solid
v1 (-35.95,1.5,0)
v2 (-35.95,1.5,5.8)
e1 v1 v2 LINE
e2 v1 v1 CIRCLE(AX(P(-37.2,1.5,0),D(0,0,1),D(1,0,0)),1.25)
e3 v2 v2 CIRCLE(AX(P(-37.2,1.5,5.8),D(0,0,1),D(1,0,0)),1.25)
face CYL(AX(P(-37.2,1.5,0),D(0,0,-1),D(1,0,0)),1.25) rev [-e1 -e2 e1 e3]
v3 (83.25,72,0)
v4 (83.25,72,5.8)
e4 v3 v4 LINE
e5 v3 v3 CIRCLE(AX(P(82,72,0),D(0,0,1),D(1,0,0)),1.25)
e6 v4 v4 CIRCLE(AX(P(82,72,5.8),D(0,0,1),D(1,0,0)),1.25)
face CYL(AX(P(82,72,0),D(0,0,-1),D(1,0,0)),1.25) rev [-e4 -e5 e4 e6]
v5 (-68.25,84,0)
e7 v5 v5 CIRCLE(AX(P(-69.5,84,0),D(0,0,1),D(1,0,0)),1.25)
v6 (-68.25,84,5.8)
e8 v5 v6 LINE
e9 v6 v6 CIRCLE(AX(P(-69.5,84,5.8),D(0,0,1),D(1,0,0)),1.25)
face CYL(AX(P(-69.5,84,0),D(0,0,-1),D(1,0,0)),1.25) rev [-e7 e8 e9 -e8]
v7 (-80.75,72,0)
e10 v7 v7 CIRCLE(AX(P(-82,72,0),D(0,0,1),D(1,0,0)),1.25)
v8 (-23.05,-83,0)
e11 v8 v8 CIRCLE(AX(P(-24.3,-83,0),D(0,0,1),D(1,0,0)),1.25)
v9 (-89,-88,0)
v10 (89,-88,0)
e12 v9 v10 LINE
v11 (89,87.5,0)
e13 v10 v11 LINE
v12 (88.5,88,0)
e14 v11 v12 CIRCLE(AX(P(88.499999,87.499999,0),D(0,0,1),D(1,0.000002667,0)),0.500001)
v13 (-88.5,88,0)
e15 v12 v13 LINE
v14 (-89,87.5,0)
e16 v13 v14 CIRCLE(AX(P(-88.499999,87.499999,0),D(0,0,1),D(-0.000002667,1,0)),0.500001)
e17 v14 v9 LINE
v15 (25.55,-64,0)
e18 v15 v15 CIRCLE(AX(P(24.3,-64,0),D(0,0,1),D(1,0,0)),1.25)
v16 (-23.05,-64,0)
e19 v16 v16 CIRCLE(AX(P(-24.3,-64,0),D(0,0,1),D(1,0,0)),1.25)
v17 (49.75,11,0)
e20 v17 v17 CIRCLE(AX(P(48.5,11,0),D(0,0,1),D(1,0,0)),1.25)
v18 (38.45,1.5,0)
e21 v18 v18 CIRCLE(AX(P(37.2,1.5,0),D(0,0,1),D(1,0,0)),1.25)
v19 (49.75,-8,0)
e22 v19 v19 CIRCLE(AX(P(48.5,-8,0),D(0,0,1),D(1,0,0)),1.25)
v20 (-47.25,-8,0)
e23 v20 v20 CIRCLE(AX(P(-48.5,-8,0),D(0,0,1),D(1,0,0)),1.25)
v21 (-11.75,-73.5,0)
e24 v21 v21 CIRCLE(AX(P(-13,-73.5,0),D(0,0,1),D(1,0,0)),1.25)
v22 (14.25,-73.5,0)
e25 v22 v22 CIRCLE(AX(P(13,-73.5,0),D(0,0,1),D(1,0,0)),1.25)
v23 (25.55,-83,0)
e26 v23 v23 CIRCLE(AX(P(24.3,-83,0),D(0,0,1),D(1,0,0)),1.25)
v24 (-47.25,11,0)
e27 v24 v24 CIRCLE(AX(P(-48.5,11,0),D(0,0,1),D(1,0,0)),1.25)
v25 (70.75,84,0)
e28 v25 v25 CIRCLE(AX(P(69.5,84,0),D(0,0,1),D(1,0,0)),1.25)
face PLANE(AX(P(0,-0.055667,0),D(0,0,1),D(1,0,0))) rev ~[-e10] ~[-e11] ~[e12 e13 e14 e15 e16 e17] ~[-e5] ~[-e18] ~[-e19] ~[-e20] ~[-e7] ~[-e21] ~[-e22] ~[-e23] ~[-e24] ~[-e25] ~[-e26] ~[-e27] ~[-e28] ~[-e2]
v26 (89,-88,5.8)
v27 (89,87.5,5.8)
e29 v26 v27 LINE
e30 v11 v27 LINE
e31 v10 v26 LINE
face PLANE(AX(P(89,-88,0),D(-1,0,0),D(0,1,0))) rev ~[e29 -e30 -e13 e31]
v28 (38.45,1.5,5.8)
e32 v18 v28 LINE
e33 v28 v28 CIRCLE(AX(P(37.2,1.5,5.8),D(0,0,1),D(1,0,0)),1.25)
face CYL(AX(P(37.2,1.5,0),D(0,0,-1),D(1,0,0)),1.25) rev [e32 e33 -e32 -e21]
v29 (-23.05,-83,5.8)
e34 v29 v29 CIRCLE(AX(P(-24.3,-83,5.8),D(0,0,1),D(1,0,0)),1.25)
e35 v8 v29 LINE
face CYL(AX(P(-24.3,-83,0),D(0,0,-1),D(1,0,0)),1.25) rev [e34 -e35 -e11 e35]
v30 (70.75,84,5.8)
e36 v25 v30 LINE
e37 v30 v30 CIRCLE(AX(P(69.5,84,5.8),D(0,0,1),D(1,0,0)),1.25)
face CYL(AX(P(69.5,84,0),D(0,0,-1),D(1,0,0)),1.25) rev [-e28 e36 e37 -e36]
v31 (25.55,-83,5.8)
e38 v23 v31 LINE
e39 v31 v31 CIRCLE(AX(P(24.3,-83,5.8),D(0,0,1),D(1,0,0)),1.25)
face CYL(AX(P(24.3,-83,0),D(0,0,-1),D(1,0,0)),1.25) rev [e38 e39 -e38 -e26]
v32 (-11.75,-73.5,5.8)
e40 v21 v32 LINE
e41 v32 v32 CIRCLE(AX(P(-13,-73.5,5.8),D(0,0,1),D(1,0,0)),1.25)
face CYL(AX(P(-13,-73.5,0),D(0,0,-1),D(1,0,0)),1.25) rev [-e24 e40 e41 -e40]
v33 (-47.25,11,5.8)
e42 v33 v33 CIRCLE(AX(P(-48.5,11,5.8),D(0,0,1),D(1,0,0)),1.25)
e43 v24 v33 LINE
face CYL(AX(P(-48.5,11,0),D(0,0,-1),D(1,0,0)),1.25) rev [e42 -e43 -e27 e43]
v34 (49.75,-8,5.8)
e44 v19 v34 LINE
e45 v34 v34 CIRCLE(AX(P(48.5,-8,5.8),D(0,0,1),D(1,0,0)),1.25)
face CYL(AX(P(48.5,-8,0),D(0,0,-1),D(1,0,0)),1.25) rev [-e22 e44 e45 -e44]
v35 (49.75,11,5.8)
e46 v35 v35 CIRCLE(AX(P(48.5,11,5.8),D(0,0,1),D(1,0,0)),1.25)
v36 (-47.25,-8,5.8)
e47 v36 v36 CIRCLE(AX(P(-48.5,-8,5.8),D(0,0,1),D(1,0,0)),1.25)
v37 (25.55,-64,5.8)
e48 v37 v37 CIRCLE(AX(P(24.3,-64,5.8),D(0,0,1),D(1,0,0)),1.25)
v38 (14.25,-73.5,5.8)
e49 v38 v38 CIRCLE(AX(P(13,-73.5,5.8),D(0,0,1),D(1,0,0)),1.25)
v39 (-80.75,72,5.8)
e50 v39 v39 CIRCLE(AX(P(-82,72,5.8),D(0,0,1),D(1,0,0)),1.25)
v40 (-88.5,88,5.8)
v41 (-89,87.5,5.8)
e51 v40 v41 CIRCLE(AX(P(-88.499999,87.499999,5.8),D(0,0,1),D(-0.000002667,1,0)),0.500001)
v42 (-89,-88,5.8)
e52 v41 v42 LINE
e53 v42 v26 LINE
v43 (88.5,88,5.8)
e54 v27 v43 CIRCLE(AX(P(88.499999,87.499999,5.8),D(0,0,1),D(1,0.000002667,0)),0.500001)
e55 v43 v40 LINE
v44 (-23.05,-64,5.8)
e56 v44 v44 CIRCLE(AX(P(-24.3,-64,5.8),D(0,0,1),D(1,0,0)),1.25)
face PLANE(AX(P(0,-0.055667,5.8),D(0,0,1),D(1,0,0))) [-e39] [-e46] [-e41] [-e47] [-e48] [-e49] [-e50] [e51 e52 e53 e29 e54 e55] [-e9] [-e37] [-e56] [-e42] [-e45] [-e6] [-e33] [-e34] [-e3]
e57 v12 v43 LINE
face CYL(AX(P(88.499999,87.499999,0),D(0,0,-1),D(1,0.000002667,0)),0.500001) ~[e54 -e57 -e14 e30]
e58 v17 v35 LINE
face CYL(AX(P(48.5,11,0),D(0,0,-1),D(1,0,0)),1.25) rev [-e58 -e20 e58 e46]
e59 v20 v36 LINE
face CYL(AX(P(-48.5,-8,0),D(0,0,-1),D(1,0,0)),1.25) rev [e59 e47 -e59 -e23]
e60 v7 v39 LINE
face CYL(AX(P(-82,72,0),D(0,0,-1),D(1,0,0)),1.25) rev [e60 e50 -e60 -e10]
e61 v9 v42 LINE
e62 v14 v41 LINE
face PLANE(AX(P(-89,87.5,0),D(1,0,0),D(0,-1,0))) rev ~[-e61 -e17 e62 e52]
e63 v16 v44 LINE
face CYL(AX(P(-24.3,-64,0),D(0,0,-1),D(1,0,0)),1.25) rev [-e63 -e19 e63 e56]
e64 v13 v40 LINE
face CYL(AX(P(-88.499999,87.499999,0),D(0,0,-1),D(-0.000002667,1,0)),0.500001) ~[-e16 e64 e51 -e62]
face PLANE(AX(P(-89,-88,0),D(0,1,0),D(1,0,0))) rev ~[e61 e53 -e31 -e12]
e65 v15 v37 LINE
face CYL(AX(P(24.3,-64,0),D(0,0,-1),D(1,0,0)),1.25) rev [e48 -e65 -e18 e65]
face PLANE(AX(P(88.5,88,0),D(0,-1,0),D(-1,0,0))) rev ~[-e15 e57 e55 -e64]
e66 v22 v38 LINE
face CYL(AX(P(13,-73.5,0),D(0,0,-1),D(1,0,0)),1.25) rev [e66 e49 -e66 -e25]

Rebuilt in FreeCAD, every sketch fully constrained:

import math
import FreeCAD as App
import Part
import Sketcher

V = App.Vector
Q = App.Units.Quantity

doc = App.newDocument("Part")
body = doc.addObject("PartDesign::Body", "Body")

sketch1 = body.newObject("Sketcher::SketchObject", "Sketch")
sketch1.AttachmentSupport = (doc.getObject("XY_Plane"), [""])
sketch1.MapMode = "FlatFace"
sketch1.addGeometry([
    Part.ArcOfCircle(Part.Circle(V(88.5, 87.5, 0), V(0, 0, 1), 0.5), math.radians(0), math.radians(90)),
    Part.LineSegment(V(88.5, 88, 0), V(-88.5, 88, 0)),
    Part.ArcOfCircle(Part.Circle(V(-88.5, 87.5, 0), V(0, 0, 1), 0.5), math.radians(90), math.radians(180)),
    Part.LineSegment(V(-89, 87.5, 0), V(-89, -88, 0)),
    Part.LineSegment(V(-89, -88, 0), V(89, -88, 0)),
    Part.LineSegment(V(89, -88, 0), V(89, 87.5, 0)),
    Part.Circle(V(-24.3, -83, 0), V(0, 0, 1), 1.2),
    Part.Circle(V(-24.3, -64, 0), V(0, 0, 1), 1.2),
    Part.Circle(V(-13, -73.5, 0), V(0, 0, 1), 1.2),
    Part.Circle(V(-48.5, -8, 0), V(0, 0, 1), 1.2),
    Part.Circle(V(13, -73.5, 0), V(0, 0, 1), 1.2),
    Part.Circle(V(24.3, -83, 0), V(0, 0, 1), 1.2),
    Part.Circle(V(24.3, -64, 0), V(0, 0, 1), 1.2),
    Part.Circle(V(48.5, -8, 0), V(0, 0, 1), 1.2),
    Part.Circle(V(-48.5, 11, 0), V(0, 0, 1), 1.2),
    Part.Circle(V(-37.2, 1.5, 0), V(0, 0, 1), 1.2),
    Part.Circle(V(-82, 72, 0), V(0, 0, 1), 1.2),
    Part.Circle(V(-69.5, 84, 0), V(0, 0, 1), 1.2),
    Part.Circle(V(37.2, 1.5, 0), V(0, 0, 1), 1.2),
    Part.Circle(V(48.5, 11, 0), V(0, 0, 1), 1.2),
    Part.Circle(V(82, 72, 0), V(0, 0, 1), 1.2),
    Part.Circle(V(69.5, 84, 0), V(0, 0, 1), 1.2),
], False)
sketch1.addConstraint([
    Sketcher.Constraint("Coincident", 0, 2, 1, 1),
    Sketcher.Constraint("Coincident", 1, 2, 2, 1),
    Sketcher.Constraint("Coincident", 2, 2, 3, 1),
    Sketcher.Constraint("Coincident", 3, 2, 4, 1),
    Sketcher.Constraint("Coincident", 4, 2, 5, 1),
    Sketcher.Constraint("Coincident", 5, 2, 0, 1),
    Sketcher.Constraint("Horizontal", 1),
    Sketcher.Constraint("Vertical", 3),
    Sketcher.Constraint("Horizontal", 4),
    Sketcher.Constraint("Vertical", 5),
    Sketcher.Constraint("Equal", 0, 2),
    Sketcher.Constraint("Equal", 6, 7),
    Sketcher.Constraint("Equal", 7, 8),
    Sketcher.Constraint("Equal", 8, 9),
    Sketcher.Constraint("Equal", 9, 10),
    Sketcher.Constraint("Equal", 10, 11),
    Sketcher.Constraint("Equal", 11, 12),
    Sketcher.Constraint("Equal", 12, 13),
    Sketcher.Constraint("Equal", 13, 14),
    Sketcher.Constraint("Equal", 14, 15),
    Sketcher.Constraint("Equal", 15, 16),
    Sketcher.Constraint("Equal", 16, 17),
    Sketcher.Constraint("Equal", 17, 18),
    Sketcher.Constraint("Equal", 18, 19),
    Sketcher.Constraint("Equal", 19, 20),
    Sketcher.Constraint("Equal", 20, 21),
    Sketcher.Constraint("Symmetric", 8, 3, 10, 3, -2),
    Sketcher.Constraint("Symmetric", 6, 3, 11, 3, -2),
    Sketcher.Constraint("Symmetric", 7, 3, 12, 3, -2),
    Sketcher.Constraint("Symmetric", 9, 3, 13, 3, -2),
    Sketcher.Constraint("Symmetric", 15, 3, 18, 3, -2),
    Sketcher.Constraint("Symmetric", 14, 3, 19, 3, -2),
    Sketcher.Constraint("Symmetric", 16, 3, 20, 3, -2),
    Sketcher.Constraint("Symmetric", 17, 3, 21, 3, -2),
    Sketcher.Constraint("Symmetric", 2, 2, 5, 2, -2),
    Sketcher.Constraint("Horizontal", 0, 3, 2, 2),
    Sketcher.Constraint("Vertical", 6, 3, 7, 3),
    Sketcher.Constraint("Vertical", 9, 3, 14, 3),
    Sketcher.Constraint("Vertical", 2, 3, 1, 2),
    Sketcher.Constraint("Diameter", 6, Q("2.5 mm")),
    Sketcher.Constraint("Radius", 0, Q("0.500001 mm")),
    Sketcher.Constraint("DistanceX", 1, 2, 1, 1, Q("177 mm")),
    Sketcher.Constraint("DistanceX", 4, 1, 4, 2, Q("178 mm")),
    Sketcher.Constraint("DistanceY", 3, 2, 3, 1, Q("175.5 mm")),
    Sketcher.Constraint("DistanceY", 6, 3, -1, 1, Q("83 mm")),
    Sketcher.Constraint("DistanceY", 7, 3, -1, 1, Q("64 mm")),
    Sketcher.Constraint("DistanceX", 8, 3, -1, 1, Q("13 mm")),
    Sketcher.Constraint("DistanceY", 9, 3, -1, 1, Q("8 mm")),
    Sketcher.Constraint("DistanceY", -1, 1, 14, 3, Q("11 mm")),
    Sketcher.Constraint("DistanceX", 16, 3, -1, 1, Q("82 mm")),
    Sketcher.Constraint("DistanceY", -1, 1, 16, 3, Q("72 mm")),
    Sketcher.Constraint("DistanceY", -1, 1, 17, 3, Q("84 mm")),
    Sketcher.Constraint("DistanceY", -1, 1, 0, 2, Q("88 mm")),
    Sketcher.Constraint("DistanceY", 8, 3, 2, 3, Q("160.999999 mm")),
    Sketcher.Constraint("DistanceX", 2, 3, 9, 3, Q("39.999999 mm")),
    Sketcher.Constraint("DistanceY", 8, 3, 15, 3, Q("75 mm")),
    Sketcher.Constraint("DistanceX", 2, 3, 17, 3, Q("18.999999 mm")),
    Sketcher.Constraint("DistanceX", 6, 3, -1, 1, Q("24.3 mm")),
    Sketcher.Constraint("DistanceX", 15, 3, -1, 1, Q("37.2 mm")),
])
pad1 = body.newObject("PartDesign::Pad", "Pad")
pad1.Profile = sketch1
pad1.Length = 5.8

doc.recompute()
